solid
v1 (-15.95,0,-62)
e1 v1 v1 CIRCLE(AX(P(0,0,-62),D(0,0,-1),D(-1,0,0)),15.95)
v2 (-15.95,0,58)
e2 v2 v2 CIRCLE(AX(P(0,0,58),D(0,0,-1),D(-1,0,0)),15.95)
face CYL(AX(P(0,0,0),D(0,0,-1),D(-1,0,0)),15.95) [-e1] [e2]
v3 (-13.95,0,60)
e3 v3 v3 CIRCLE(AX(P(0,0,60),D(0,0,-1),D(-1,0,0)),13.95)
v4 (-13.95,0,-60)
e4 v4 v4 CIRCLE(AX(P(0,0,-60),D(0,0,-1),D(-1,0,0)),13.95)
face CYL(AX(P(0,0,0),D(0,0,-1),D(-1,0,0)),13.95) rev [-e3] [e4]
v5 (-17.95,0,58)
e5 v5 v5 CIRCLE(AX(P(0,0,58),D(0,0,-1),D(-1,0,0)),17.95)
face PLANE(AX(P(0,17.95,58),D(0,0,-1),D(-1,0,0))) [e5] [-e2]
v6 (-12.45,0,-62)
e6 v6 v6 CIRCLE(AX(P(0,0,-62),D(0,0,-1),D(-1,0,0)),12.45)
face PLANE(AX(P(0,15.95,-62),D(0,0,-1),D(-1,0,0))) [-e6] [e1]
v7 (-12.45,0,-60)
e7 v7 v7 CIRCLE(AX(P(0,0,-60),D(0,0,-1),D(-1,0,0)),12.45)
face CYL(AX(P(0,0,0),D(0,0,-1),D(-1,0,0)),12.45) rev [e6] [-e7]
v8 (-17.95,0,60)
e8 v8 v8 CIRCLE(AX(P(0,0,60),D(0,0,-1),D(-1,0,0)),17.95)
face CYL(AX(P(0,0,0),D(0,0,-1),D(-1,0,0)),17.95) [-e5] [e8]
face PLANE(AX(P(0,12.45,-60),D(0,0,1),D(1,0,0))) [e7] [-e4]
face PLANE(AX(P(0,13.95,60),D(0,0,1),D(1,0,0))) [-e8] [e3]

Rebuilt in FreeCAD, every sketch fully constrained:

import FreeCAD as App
import Part
import Sketcher


def add_polygon(sketch, points):
    """Adds a closed chain of lines whose ends are joined by coincident constraints."""
    first, n = sketch.GeometryCount, len(points)
    for a, b in zip(points, points[1:] + points[:1]):
        sketch.addGeometry(Part.LineSegment(App.Vector(*a, 0), App.Vector(*b, 0)), False)
    for i in range(n):
        sketch.addConstraint(Sketcher.Constraint("Coincident", first + i, 2, first + (i + 1) % n, 1))

doc = App.newDocument("Part")
params = doc.addObject("Spreadsheet::Sheet", "Params")
for row, (alias, value) in enumerate([
    ("sketch1_width", "2 mm"),
    ("sketch1_width2", "4 mm"),
    ("sketch1_height", "120 mm"),
    ("sketch1_width3", "1.5 mm"),
    ("revolution_angle", "360 deg"),
], start=1):
    params.set(f"A{row}", alias)
    params.set(f"B{row}", "=" + value)
    params.setAlias(f"B{row}", alias)

body = doc.addObject("PartDesign::Body", "Body")

sketch1 = doc.addObject("Sketcher::SketchObject", "Sketch")
body.addObject(sketch1)
sketch1.AttachmentSupport = (doc.YZ_Plane, [""])
sketch1.MapMode = "FlatFace"
add_polygon(sketch1, [(13.9, 60), (13.9, -60), (12.4, -60), (12.4, -62), (15.9, -62), (15.9, 58), (17.9, 58), (17.9, 60)])
sketch1.addConstraint([
    Sketcher.Constraint("Vertical", 0),
    Sketcher.Constraint("Horizontal", 1),
    Sketcher.Constraint("Vertical", 2),
    Sketcher.Constraint("Horizontal", 3),
    Sketcher.Constraint("Vertical", 4),
    Sketcher.Constraint("Horizontal", 5),
    Sketcher.Constraint("Vertical", 6),
    Sketcher.Constraint("Horizontal", 7),
    Sketcher.Constraint("Equal", 5, 2),
    Sketcher.Constraint("Equal", 0, 4),
    Sketcher.Constraint("DistanceX", 5, 1, 5, 2, 2.0),
    Sketcher.Constraint("DistanceX", 7, 2, 7, 1, 4.0),
    Sketcher.Constraint("DistanceY", 0, 2, 0, 1, 120.0),
    Sketcher.Constraint("DistanceX", 1, 2, 1, 1, 1.5),
    Sketcher.Constraint("DistanceY", 0, 2, -1, 1, 60.0),
    Sketcher.Constraint("DistanceX", -1, 1, 0, 2, 13.95),
])
sketch1.setExpression("Constraints[18]", "Params.sketch1_width")
sketch1.setExpression("Constraints[19]", "Params.sketch1_width2")
sketch1.setExpression("Constraints[20]", "Params.sketch1_height")
sketch1.setExpression("Constraints[21]", "Params.sketch1_width3")
revolution = doc.addObject("PartDesign::Revolution", "Revolution")
body.addObject(revolution)
revolution.Profile = sketch1
revolution.ReferenceAxis = (sketch1, ["V_Axis"])
revolution.setExpression("Angle", "Params.revolution_angle")

doc.recompute()
